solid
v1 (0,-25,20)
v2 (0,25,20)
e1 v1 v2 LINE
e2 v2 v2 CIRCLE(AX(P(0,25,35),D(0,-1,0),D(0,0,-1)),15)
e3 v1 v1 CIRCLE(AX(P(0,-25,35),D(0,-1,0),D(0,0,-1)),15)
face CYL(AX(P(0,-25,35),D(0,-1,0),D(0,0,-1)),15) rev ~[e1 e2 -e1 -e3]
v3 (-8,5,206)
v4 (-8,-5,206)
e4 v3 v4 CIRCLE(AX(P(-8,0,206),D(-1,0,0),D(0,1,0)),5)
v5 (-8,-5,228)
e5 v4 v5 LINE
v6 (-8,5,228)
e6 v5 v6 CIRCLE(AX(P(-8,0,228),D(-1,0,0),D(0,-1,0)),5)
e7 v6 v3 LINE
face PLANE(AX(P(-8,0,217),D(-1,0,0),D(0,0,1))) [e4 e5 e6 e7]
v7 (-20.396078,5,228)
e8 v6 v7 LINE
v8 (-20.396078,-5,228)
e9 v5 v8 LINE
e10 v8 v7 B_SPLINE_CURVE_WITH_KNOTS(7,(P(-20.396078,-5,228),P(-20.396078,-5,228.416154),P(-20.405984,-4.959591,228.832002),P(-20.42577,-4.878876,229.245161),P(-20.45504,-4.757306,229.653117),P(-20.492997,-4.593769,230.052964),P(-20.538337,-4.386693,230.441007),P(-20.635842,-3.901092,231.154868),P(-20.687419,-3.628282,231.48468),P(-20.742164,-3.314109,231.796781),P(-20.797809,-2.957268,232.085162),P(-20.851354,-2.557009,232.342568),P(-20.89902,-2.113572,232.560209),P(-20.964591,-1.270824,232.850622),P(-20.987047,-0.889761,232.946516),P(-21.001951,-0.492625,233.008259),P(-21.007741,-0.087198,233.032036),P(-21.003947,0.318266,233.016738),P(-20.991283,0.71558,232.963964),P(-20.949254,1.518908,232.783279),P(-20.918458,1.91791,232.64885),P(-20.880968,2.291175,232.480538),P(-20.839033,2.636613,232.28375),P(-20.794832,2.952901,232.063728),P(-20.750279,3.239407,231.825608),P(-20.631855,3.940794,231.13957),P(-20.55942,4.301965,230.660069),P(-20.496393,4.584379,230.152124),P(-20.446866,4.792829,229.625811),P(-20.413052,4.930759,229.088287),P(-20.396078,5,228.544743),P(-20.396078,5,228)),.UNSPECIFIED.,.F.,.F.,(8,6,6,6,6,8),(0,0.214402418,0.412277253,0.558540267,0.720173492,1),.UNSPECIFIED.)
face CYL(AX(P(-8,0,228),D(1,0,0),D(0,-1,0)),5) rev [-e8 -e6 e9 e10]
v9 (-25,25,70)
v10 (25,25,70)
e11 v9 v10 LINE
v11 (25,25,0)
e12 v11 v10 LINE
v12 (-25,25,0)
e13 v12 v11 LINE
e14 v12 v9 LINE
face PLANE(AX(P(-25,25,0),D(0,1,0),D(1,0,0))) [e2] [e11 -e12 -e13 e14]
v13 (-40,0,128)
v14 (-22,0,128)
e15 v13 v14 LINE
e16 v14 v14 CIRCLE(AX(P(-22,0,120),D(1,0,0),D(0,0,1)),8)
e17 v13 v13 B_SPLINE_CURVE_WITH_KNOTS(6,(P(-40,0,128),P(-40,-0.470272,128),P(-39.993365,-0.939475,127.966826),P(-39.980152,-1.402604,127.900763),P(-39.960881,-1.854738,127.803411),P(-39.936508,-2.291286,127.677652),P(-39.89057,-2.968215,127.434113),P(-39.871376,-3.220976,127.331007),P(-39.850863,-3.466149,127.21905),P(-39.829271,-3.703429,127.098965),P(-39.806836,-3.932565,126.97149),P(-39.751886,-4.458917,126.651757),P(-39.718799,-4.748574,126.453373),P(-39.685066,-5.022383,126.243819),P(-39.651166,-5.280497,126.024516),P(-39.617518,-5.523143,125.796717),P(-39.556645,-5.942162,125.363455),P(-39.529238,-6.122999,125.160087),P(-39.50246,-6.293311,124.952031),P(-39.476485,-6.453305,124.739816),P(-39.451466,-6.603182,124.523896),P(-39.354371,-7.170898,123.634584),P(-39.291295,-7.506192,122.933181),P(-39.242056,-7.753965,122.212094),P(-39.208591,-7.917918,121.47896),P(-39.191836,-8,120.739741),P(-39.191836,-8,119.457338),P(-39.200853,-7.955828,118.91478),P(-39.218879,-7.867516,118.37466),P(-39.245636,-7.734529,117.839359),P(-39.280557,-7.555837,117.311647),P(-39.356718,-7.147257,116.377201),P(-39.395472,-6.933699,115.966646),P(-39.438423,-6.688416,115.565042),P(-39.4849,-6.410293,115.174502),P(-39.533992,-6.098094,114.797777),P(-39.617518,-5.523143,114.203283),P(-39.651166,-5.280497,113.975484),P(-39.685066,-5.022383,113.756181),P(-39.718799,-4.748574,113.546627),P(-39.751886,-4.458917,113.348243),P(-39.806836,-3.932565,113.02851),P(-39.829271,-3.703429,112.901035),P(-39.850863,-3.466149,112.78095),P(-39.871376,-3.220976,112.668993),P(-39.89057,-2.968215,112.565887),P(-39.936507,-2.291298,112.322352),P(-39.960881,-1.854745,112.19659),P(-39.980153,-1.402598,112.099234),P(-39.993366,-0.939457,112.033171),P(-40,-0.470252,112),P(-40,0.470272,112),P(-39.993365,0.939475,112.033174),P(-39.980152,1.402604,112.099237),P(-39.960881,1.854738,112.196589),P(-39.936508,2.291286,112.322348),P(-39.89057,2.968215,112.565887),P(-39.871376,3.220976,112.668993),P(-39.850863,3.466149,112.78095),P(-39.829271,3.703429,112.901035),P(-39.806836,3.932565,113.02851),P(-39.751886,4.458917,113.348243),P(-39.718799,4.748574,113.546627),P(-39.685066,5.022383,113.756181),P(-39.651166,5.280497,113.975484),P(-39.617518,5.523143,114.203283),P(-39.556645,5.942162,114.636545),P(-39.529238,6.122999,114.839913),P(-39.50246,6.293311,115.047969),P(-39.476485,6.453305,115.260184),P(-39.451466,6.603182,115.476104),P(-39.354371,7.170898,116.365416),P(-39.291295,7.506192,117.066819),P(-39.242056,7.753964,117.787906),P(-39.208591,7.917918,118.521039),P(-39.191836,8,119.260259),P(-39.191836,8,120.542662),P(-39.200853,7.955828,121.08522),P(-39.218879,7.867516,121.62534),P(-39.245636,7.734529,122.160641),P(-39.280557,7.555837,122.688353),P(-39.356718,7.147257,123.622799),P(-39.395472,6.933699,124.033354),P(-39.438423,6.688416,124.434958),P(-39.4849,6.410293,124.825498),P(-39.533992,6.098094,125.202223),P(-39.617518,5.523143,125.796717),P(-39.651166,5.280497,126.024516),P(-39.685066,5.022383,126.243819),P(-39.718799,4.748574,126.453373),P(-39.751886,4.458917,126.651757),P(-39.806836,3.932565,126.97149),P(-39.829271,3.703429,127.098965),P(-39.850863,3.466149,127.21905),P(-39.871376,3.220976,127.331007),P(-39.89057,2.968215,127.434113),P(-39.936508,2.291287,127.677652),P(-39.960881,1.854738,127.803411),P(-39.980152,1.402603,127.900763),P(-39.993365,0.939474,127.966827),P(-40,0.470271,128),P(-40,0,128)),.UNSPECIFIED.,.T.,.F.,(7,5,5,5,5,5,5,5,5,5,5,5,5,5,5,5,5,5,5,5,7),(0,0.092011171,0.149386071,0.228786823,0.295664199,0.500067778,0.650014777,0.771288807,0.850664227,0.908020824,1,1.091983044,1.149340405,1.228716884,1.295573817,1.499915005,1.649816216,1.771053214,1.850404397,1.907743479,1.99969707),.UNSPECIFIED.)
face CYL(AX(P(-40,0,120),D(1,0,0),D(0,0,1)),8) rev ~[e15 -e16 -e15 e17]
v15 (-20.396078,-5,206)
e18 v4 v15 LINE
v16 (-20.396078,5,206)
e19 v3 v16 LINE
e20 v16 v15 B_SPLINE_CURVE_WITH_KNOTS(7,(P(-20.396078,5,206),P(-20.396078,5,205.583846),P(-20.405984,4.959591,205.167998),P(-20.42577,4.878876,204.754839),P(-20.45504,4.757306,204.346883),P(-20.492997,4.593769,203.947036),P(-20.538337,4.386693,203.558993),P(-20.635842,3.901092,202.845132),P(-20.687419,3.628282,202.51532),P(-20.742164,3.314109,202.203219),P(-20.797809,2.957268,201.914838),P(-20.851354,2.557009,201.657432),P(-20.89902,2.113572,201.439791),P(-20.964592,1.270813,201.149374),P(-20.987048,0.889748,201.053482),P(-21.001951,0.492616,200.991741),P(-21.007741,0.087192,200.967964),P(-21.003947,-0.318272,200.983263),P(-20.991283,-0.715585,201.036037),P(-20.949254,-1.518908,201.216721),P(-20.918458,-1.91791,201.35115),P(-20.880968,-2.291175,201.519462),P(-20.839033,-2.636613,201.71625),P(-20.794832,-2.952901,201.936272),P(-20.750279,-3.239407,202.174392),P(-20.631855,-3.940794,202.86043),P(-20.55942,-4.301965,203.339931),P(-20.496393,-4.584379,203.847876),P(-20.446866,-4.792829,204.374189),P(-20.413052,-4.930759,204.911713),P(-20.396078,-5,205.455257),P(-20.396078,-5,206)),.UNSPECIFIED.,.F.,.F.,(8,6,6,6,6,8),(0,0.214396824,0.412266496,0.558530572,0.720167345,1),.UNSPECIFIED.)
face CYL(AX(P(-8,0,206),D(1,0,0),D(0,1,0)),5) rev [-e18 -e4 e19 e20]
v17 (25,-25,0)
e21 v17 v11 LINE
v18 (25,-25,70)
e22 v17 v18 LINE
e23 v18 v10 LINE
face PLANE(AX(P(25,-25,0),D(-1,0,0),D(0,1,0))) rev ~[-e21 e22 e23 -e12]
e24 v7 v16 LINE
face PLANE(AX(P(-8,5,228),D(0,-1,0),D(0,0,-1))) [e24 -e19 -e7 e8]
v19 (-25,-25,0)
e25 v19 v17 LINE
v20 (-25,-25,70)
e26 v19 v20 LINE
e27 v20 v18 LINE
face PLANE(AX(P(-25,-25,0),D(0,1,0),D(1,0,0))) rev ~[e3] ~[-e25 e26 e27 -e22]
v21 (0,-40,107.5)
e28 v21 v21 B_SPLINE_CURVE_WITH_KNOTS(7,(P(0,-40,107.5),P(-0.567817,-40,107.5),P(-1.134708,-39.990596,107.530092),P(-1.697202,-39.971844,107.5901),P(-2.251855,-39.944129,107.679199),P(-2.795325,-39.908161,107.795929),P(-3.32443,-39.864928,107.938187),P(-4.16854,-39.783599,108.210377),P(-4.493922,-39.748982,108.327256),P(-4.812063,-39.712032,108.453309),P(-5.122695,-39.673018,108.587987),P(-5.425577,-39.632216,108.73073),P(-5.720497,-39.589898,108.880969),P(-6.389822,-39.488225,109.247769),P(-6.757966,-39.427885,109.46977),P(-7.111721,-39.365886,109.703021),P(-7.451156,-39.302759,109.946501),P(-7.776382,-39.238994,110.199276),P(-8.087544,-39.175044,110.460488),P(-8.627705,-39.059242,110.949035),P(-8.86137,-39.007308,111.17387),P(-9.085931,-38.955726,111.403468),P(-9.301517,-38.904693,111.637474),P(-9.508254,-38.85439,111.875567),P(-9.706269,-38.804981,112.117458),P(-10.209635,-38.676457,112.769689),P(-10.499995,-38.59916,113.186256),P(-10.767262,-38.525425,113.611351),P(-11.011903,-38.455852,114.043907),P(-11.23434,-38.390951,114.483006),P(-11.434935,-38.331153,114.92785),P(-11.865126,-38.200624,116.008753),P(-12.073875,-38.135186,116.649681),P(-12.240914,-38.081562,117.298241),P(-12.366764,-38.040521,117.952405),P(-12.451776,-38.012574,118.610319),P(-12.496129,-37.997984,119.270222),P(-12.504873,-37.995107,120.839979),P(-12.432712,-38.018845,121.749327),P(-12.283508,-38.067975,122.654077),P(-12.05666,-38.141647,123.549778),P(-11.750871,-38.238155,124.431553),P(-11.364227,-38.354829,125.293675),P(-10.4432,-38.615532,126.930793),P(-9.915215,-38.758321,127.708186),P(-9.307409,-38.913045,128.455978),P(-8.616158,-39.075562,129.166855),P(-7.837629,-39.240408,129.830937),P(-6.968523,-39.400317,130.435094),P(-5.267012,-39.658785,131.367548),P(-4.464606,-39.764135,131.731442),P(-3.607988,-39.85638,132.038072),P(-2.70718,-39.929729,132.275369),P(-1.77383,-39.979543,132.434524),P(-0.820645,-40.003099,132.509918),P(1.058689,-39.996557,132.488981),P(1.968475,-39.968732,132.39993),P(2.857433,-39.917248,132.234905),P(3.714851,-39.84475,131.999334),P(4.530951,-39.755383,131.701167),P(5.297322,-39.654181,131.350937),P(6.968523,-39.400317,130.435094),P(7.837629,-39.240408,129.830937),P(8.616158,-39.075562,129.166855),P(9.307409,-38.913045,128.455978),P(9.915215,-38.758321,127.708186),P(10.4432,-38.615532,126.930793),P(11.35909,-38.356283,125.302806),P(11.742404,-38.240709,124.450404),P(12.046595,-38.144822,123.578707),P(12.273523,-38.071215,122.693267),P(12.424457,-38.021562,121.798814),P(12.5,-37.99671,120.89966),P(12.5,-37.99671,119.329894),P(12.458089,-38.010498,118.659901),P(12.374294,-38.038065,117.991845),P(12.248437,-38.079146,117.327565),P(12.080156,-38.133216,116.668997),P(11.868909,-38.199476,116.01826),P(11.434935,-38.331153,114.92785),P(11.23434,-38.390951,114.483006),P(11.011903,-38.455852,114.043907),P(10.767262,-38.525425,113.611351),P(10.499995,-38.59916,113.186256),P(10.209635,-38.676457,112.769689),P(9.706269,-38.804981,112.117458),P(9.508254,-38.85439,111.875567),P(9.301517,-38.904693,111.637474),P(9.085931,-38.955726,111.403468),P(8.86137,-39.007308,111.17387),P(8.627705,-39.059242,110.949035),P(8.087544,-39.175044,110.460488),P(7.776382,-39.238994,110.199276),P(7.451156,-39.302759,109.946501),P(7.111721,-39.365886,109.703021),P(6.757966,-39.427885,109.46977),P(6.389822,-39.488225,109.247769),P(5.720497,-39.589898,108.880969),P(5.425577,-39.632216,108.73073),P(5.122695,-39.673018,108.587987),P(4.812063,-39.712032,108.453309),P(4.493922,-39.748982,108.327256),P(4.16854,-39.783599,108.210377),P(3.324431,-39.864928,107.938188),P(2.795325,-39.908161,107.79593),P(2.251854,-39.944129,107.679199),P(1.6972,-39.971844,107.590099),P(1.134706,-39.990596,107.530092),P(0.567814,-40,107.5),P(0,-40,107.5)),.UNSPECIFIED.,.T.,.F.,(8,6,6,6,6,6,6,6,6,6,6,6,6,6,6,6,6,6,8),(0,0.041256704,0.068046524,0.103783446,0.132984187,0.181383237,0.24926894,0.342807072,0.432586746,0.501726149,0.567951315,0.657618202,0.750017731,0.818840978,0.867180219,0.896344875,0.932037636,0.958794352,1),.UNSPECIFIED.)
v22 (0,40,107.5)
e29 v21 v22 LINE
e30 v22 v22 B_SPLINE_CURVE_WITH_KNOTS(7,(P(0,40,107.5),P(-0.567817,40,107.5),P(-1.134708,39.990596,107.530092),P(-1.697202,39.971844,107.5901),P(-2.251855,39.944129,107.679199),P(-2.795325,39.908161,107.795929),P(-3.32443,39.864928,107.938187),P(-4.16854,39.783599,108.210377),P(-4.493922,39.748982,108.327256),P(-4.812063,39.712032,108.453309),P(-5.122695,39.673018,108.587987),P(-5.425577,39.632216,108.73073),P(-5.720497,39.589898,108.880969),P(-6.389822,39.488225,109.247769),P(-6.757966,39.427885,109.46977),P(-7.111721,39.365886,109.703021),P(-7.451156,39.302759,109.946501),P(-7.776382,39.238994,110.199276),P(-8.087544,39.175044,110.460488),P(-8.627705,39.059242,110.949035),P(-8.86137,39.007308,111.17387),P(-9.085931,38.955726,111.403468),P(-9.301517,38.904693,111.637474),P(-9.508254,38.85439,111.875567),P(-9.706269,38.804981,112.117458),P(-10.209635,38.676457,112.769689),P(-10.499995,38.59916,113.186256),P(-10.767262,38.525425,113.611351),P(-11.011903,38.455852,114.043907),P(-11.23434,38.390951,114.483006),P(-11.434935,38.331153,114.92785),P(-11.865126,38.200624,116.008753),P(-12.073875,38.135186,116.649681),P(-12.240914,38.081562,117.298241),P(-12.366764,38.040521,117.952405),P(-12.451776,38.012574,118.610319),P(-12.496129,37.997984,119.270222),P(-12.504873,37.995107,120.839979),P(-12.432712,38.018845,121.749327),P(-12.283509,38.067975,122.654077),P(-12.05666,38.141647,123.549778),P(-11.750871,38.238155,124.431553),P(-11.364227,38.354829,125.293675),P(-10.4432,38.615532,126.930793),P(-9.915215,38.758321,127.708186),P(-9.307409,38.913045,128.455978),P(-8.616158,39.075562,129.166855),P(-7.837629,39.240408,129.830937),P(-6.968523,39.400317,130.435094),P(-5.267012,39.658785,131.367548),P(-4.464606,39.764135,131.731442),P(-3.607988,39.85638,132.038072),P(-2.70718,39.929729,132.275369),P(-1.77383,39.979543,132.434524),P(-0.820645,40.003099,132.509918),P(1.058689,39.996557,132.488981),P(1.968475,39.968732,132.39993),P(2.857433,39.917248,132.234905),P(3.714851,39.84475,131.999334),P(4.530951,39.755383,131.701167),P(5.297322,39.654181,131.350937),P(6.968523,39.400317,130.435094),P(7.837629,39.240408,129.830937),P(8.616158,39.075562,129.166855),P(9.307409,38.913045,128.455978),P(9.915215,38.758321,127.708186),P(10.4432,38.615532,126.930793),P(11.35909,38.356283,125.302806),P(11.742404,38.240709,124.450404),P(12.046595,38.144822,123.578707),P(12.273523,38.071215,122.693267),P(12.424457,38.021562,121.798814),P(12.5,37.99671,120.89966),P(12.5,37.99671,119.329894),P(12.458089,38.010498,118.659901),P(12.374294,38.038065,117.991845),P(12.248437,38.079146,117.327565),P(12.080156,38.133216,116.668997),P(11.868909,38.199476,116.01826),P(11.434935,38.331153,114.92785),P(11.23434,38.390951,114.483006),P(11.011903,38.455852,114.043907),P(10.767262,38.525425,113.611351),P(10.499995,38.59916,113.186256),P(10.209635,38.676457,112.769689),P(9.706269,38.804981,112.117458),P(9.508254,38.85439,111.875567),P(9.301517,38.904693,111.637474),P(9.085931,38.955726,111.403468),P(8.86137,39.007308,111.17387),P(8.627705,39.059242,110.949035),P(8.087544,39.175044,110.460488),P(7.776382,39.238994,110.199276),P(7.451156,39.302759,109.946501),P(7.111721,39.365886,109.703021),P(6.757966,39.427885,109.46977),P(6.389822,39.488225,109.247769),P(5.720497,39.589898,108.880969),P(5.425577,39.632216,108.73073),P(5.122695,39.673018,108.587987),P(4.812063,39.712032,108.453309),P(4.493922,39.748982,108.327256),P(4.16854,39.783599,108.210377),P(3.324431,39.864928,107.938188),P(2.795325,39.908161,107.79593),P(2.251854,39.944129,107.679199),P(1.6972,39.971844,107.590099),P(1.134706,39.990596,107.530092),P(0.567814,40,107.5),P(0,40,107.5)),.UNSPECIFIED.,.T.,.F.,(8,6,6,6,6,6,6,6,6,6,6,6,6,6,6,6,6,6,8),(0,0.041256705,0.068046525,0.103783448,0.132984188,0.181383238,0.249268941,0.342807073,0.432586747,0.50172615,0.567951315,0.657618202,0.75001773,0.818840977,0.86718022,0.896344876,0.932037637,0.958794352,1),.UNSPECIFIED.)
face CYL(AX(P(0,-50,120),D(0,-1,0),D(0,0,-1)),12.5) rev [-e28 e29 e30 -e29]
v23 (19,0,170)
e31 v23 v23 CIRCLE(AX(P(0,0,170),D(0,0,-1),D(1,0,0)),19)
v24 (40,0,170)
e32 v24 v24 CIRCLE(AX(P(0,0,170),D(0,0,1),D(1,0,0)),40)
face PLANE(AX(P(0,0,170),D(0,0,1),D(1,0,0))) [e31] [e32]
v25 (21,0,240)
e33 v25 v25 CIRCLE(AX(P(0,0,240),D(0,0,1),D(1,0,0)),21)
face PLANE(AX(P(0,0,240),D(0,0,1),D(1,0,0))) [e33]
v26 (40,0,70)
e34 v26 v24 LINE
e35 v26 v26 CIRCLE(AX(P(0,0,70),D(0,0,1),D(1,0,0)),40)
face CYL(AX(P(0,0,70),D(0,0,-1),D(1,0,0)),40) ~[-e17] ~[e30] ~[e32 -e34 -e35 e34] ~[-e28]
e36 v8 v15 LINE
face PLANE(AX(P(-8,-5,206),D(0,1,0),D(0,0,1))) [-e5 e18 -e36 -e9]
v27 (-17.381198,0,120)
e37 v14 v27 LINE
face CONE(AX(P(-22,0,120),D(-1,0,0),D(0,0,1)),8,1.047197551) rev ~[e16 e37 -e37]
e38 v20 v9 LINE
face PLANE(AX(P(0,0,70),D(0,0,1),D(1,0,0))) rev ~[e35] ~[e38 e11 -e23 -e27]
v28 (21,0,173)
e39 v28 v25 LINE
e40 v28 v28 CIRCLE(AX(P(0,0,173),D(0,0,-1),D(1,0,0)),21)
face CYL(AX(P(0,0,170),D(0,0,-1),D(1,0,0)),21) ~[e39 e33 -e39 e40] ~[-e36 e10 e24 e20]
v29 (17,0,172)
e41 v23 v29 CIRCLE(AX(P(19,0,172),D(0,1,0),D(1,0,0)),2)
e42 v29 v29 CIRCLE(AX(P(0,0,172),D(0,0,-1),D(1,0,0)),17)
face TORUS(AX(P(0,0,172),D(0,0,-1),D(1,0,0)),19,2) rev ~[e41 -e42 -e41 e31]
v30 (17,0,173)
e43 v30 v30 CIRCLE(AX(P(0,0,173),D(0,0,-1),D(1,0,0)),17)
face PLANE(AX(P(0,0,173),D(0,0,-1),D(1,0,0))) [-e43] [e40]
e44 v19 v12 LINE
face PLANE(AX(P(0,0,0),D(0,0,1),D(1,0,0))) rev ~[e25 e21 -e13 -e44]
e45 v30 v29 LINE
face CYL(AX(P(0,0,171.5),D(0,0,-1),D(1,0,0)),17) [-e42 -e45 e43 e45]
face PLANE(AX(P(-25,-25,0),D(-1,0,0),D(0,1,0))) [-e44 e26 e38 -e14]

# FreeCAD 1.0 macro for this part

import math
import FreeCAD as App
import Part
import Sketcher
Q = App.Units.Quantity


def edges_at(feature, points):
    """Names of the edges that pass closest to the given points."""
    edges = feature.Shape.Edges
    near = lambda p: min(range(len(edges)), key=lambda i: edges[i].distToShape(Part.Vertex(*p))[0])
    return sorted({f"Edge{near(p) + 1}" for p in points})

doc = App.newDocument("Part")
body = doc.addObject("PartDesign::Body", "Body")

sketch1 = body.newObject("Sketcher::SketchObject", "Sketch")
sketch1.AttachmentSupport = (doc.getObject("XY_Plane"), [""])
sketch1.MapMode = "FlatFace"
sketch1.addGeometry([
    Part.LineSegment(App.Vector(-25, 25, 0), App.Vector(-25, -25, 0)),
    Part.LineSegment(App.Vector(-25, -25, 0), App.Vector(25, -25, 0)),
    Part.LineSegment(App.Vector(25, -25, 0), App.Vector(25, 25, 0)),
    Part.LineSegment(App.Vector(25, 25, 0), App.Vector(-25, 25, 0)),
], False)
sketch1.addConstraint([
    Sketcher.Constraint("Coincident", 0, 2, 1, 1),
    Sketcher.Constraint("Coincident", 1, 2, 2, 1),
    Sketcher.Constraint("Coincident", 2, 2, 3, 1),
    Sketcher.Constraint("Coincident", 3, 2, 0, 1),
    Sketcher.Constraint("Vertical", 0),
    Sketcher.Constraint("Horizontal", 1),
    Sketcher.Constraint("Vertical", 2),
    Sketcher.Constraint("Horizontal", 3),
    Sketcher.Constraint("Symmetric", 0, 2, 2, 2, -1, 1),
    Sketcher.Constraint("Equal", 3, 0),
    Sketcher.Constraint("DistanceX", 1, 1, 1, 2, Q("50 mm")),
])
pad1 = body.newObject("PartDesign::Pad", "Pad")
pad1.Profile = sketch1
pad1.Length = 70

sketch2 = body.newObject("Sketcher::SketchObject", "Sketch001")
sketch2.AttachmentSupport = (doc.getObject("XY_Plane"), [""])
sketch2.MapMode = "FlatFace"
sketch2.AttachmentOffset = App.Placement(App.Vector(0, 0, 70), App.Rotation())
sketch2.addGeometry(Part.Circle(App.Vector(0, 0, 0), App.Vector(0, 0, 1), 40), False)
sketch2.addConstraint([
    Sketcher.Constraint("Coincident", 0, 3, -1, 1),
    Sketcher.Constraint("Diameter", 0, Q("80 mm")),
])
pad2 = body.newObject("PartDesign::Pad", "Pad001")
pad2.Profile = sketch2
pad2.Length = 100

sketch3 = body.newObject("Sketcher::SketchObject", "Sketch002")
sketch3.AttachmentSupport = (doc.getObject("XY_Plane"), [""])
sketch3.MapMode = "FlatFace"
sketch3.AttachmentOffset = App.Placement(App.Vector(0, 0, 170), App.Rotation())
sketch3.addGeometry(Part.Circle(App.Vector(0, 0, 0), App.Vector(0, 0, 1), 21), False)
sketch3.addConstraint([
    Sketcher.Constraint("Coincident", 0, 3, -1, 1),
    Sketcher.Constraint("Diameter", 0, Q("42 mm")),
])
pad3 = body.newObject("PartDesign::Pad", "Pad002")
pad3.Profile = sketch3
pad3.Length = 70

sketch4 = body.newObject("Sketcher::SketchObject", "Sketch003")
sketch4.AttachmentSupport = (doc.getObject("XZ_Plane"), [""])
sketch4.MapMode = "FlatFace"
sketch4.AttachmentOffset = App.Placement(App.Vector(0, 0, 25), App.Rotation())
sketch4.addGeometry(Part.Circle(App.Vector(0, 35, 0), App.Vector(0, 0, 1), 15), False)
sketch4.addConstraint([
    Sketcher.Constraint("PointOnObject", 0, 3, -2),
    Sketcher.Constraint("Diameter", 0, Q("30 mm")),
    Sketcher.Constraint("DistanceY", -1, 1, 0, 3, Q("35 mm")),
])
pocket1 = body.newObject("PartDesign::Pocket", "Pocket")
pocket1.Profile = sketch4
pocket1.Type = "ThroughAll"

sketch5 = body.newObject("Sketcher::SketchObject", "Sketch004")
sketch5.AttachmentSupport = (doc.getObject("XZ_Plane"), [""])
sketch5.MapMode = "FlatFace"
sketch5.addGeometry(Part.Circle(App.Vector(0, 120, 0), App.Vector(0, 0, 1), 12), False)
sketch5.addConstraint([
    Sketcher.Constraint("PointOnObject", 0, 3, -2),
    Sketcher.Constraint("Diameter", 0, Q("25 mm")),
    Sketcher.Constraint("DistanceY", -1, 1, 0, 3, Q("120 mm")),
])
pocket2 = body.newObject("PartDesign::Pocket", "Pocket001")
pocket2.Profile = sketch5
pocket2.Type = "ThroughAll"
pocket2.Midplane = True

sketch6 = body.newObject("Sketcher::SketchObject", "Sketch005")
sketch6.AttachmentSupport = (doc.getObject("XZ_Plane"), [""])
sketch6.MapMode = "FlatFace"
sketch6.addGeometry([
    Part.LineSegment(App.Vector(-40, 112, 0), App.Vector(-40, 120, 0)),
    Part.LineSegment(App.Vector(-40, 120, 0), App.Vector(-17, 120, 0)),
    Part.LineSegment(App.Vector(-17, 120, 0), App.Vector(-22, 112, 0)),
    Part.LineSegment(App.Vector(-22, 112, 0), App.Vector(-40, 112, 0)),
], False)
sketch6.addGeometry(Part.LineSegment(App.Vector(-40, 120, 0), App.Vector(-17, 120, 0)), True)
sketch6.addConstraint([
    Sketcher.Constraint("Coincident", 0, 2, 1, 1),
    Sketcher.Constraint("Coincident", 1, 2, 2, 1),
    Sketcher.Constraint("Coincident", 2, 2, 3, 1),
    Sketcher.Constraint("Coincident", 3, 2, 0, 1),
    Sketcher.Constraint("Vertical", 0),
    Sketcher.Constraint("Horizontal", 1),
    Sketcher.Constraint("Horizontal", 3),
    Sketcher.Constraint("Horizontal", 4),
    Sketcher.Constraint("Coincident", 4, 1, 0, 2),
    Sketcher.Constraint("Equal", 1, 4),
    Sketcher.Constraint("DistanceX", 3, 2, 3, 1, Q("18 mm")),
    Sketcher.Constraint("DistanceY", 0, 1, 0, 2, Q("8 mm")),
    Sketcher.Constraint("Angle", 2, Q("-120 deg")),
    Sketcher.Constraint("DistanceX", 0, 2, -1, 1, Q("40 mm")),
    Sketcher.Constraint("DistanceY", -1, 1, 0, 2, Q("120 mm")),
])
groove = body.newObject("PartDesign::Groove", "Groove")
groove.Profile = sketch6
groove.ReferenceAxis = (sketch6, ["Axis0"])
groove.Angle = 360

sketch7 = body.newObject("Sketcher::SketchObject", "Sketch006")
sketch7.AttachmentSupport = (doc.getObject("YZ_Plane"), [""])
sketch7.MapMode = "FlatFace"
sketch7.AttachmentOffset = App.Placement(App.Vector(0, 0, -8), App.Rotation())
sketch7.addGeometry([
    Part.LineSegment(App.Vector(5, 206, 0), App.Vector(5, 228, 0)),
    Part.ArcOfCircle(Part.Circle(App.Vector(0, 228, 0), App.Vector(0, 0, 1), 5), math.radians(0), math.radians(180)),
    Part.LineSegment(App.Vector(-5, 228, 0), App.Vector(-5, 206, 0)),
    Part.ArcOfCircle(Part.Circle(App.Vector(0, 206, 0), App.Vector(0, 0, 1), 5), math.radians(180), math.radians(360)),
], False)
sketch7.addConstraint([
    Sketcher.Constraint("Tangent", 0, 2, 1, 1),
    Sketcher.Constraint("Tangent", 1, 2, 2, 1),
    Sketcher.Constraint("Tangent", 2, 2, 3, 1),
    Sketcher.Constraint("Tangent", 3, 2, 0, 1),
    Sketcher.Constraint("Vertical", 0),
    Sketcher.Constraint("Vertical", 2),
    Sketcher.Constraint("PointOnObject", 1, 3, -2),
    Sketcher.Constraint("Radius", 1, Q("5 mm")),
    Sketcher.Constraint("DistanceY", 0, 1, 0, 2, Q("22 mm")),
    Sketcher.Constraint("DistanceY", -1, 1, 1, 3, Q("228 mm")),
])
pocket3 = body.newObject("PartDesign::Pocket", "Pocket002")
pocket3.Profile = sketch7
pocket3.Type = "ThroughAll"

sketch8 = body.newObject("Sketcher::SketchObject", "Sketch007")
sketch8.AttachmentSupport = (doc.getObject("XZ_Plane"), [""])
sketch8.MapMode = "FlatFace"
sketch8.addGeometry([
    Part.LineSegment(App.Vector(-21, 170, 0), App.Vector(-21, 173, 0)),
    Part.LineSegment(App.Vector(-21, 173, 0), App.Vector(-17, 173, 0)),
    Part.LineSegment(App.Vector(-17, 173, 0), App.Vector(-17, 170, 0)),
    Part.LineSegment(App.Vector(-17, 170, 0), App.Vector(-21, 170, 0)),
], False)
sketch8.addConstraint([
    Sketcher.Constraint("Coincident", 0, 2, 1, 1),
    Sketcher.Constraint("Coincident", 1, 2, 2, 1),
    Sketcher.Constraint("Coincident", 2, 2, 3, 1),
    Sketcher.Constraint("Coincident", 3, 2, 0, 1),
    Sketcher.Constraint("Vertical", 0),
    Sketcher.Constraint("Horizontal", 1),
    Sketcher.Constraint("Vertical", 2),
    Sketcher.Constraint("Horizontal", 3),
    Sketcher.Constraint("DistanceX", 1, 1, 1, 2, Q("4 mm")),
    Sketcher.Constraint("DistanceY", 0, 1, 0, 2, Q("3 mm")),
    Sketcher.Constraint("DistanceX", 0, 2, -1, 1, Q("21 mm")),
    Sketcher.Constraint("DistanceY", -1, 1, 0, 2, Q("173 mm")),
])
groove2 = body.newObject("PartDesign::Groove", "Groove001")
groove2.Profile = sketch8
groove2.ReferenceAxis = (sketch8, ["V_Axis"])
groove2.Angle = 360
doc.recompute()

fillet = body.newObject("PartDesign::Fillet", "Fillet")
fillet.Base = (groove2, edges_at(groove2, [(-17, 0, 170)]))
fillet.Radius = 2

doc.recompute()
